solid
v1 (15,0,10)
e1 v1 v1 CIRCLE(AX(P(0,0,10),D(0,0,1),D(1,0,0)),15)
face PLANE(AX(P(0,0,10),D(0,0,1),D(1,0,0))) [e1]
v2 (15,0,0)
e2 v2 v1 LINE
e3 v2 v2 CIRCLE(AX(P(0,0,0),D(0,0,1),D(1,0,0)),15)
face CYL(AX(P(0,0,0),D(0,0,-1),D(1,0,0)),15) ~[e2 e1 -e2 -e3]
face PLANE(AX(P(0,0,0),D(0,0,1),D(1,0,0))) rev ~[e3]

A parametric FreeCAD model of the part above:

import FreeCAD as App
import Part
import Sketcher

V = App.Vector
Q = App.Units.Quantity

doc = App.newDocument("Part")
params = doc.addObject("Spreadsheet::Sheet", "Params")
for row, (alias, value) in enumerate([
    ("sketch1_diameter", "30 mm"),
    ("pad1_length", "10 mm"),
], start=1):
    params.set(f"A{row}", alias)
    params.set(f"B{row}", "=" + value)
    params.setAlias(f"B{row}", alias)

body = doc.addObject("PartDesign::Body", "Body")

sketch1 = body.newObject("Sketcher::SketchObject", "Sketch")
sketch1.AttachmentSupport = (doc.getObject("XY_Plane"), [""])
sketch1.MapMode = "FlatFace"
sketch1.addGeometry(Part.Circle(V(0, 0, 0), V(0, 0, 1), 15), False)
sketch1.addConstraint([
    Sketcher.Constraint("Coincident", 0, 3, -1, 1),
    Sketcher.Constraint("Diameter", 0, Q("30 mm")),
])
sketch1.setExpression("Constraints[1]", "Params.sketch1_diameter")
pad1 = body.newObject("PartDesign::Pad", "Pad")
pad1.Profile = sketch1
pad1.setExpression("Length", "Params.pad1_length")

doc.recompute()
